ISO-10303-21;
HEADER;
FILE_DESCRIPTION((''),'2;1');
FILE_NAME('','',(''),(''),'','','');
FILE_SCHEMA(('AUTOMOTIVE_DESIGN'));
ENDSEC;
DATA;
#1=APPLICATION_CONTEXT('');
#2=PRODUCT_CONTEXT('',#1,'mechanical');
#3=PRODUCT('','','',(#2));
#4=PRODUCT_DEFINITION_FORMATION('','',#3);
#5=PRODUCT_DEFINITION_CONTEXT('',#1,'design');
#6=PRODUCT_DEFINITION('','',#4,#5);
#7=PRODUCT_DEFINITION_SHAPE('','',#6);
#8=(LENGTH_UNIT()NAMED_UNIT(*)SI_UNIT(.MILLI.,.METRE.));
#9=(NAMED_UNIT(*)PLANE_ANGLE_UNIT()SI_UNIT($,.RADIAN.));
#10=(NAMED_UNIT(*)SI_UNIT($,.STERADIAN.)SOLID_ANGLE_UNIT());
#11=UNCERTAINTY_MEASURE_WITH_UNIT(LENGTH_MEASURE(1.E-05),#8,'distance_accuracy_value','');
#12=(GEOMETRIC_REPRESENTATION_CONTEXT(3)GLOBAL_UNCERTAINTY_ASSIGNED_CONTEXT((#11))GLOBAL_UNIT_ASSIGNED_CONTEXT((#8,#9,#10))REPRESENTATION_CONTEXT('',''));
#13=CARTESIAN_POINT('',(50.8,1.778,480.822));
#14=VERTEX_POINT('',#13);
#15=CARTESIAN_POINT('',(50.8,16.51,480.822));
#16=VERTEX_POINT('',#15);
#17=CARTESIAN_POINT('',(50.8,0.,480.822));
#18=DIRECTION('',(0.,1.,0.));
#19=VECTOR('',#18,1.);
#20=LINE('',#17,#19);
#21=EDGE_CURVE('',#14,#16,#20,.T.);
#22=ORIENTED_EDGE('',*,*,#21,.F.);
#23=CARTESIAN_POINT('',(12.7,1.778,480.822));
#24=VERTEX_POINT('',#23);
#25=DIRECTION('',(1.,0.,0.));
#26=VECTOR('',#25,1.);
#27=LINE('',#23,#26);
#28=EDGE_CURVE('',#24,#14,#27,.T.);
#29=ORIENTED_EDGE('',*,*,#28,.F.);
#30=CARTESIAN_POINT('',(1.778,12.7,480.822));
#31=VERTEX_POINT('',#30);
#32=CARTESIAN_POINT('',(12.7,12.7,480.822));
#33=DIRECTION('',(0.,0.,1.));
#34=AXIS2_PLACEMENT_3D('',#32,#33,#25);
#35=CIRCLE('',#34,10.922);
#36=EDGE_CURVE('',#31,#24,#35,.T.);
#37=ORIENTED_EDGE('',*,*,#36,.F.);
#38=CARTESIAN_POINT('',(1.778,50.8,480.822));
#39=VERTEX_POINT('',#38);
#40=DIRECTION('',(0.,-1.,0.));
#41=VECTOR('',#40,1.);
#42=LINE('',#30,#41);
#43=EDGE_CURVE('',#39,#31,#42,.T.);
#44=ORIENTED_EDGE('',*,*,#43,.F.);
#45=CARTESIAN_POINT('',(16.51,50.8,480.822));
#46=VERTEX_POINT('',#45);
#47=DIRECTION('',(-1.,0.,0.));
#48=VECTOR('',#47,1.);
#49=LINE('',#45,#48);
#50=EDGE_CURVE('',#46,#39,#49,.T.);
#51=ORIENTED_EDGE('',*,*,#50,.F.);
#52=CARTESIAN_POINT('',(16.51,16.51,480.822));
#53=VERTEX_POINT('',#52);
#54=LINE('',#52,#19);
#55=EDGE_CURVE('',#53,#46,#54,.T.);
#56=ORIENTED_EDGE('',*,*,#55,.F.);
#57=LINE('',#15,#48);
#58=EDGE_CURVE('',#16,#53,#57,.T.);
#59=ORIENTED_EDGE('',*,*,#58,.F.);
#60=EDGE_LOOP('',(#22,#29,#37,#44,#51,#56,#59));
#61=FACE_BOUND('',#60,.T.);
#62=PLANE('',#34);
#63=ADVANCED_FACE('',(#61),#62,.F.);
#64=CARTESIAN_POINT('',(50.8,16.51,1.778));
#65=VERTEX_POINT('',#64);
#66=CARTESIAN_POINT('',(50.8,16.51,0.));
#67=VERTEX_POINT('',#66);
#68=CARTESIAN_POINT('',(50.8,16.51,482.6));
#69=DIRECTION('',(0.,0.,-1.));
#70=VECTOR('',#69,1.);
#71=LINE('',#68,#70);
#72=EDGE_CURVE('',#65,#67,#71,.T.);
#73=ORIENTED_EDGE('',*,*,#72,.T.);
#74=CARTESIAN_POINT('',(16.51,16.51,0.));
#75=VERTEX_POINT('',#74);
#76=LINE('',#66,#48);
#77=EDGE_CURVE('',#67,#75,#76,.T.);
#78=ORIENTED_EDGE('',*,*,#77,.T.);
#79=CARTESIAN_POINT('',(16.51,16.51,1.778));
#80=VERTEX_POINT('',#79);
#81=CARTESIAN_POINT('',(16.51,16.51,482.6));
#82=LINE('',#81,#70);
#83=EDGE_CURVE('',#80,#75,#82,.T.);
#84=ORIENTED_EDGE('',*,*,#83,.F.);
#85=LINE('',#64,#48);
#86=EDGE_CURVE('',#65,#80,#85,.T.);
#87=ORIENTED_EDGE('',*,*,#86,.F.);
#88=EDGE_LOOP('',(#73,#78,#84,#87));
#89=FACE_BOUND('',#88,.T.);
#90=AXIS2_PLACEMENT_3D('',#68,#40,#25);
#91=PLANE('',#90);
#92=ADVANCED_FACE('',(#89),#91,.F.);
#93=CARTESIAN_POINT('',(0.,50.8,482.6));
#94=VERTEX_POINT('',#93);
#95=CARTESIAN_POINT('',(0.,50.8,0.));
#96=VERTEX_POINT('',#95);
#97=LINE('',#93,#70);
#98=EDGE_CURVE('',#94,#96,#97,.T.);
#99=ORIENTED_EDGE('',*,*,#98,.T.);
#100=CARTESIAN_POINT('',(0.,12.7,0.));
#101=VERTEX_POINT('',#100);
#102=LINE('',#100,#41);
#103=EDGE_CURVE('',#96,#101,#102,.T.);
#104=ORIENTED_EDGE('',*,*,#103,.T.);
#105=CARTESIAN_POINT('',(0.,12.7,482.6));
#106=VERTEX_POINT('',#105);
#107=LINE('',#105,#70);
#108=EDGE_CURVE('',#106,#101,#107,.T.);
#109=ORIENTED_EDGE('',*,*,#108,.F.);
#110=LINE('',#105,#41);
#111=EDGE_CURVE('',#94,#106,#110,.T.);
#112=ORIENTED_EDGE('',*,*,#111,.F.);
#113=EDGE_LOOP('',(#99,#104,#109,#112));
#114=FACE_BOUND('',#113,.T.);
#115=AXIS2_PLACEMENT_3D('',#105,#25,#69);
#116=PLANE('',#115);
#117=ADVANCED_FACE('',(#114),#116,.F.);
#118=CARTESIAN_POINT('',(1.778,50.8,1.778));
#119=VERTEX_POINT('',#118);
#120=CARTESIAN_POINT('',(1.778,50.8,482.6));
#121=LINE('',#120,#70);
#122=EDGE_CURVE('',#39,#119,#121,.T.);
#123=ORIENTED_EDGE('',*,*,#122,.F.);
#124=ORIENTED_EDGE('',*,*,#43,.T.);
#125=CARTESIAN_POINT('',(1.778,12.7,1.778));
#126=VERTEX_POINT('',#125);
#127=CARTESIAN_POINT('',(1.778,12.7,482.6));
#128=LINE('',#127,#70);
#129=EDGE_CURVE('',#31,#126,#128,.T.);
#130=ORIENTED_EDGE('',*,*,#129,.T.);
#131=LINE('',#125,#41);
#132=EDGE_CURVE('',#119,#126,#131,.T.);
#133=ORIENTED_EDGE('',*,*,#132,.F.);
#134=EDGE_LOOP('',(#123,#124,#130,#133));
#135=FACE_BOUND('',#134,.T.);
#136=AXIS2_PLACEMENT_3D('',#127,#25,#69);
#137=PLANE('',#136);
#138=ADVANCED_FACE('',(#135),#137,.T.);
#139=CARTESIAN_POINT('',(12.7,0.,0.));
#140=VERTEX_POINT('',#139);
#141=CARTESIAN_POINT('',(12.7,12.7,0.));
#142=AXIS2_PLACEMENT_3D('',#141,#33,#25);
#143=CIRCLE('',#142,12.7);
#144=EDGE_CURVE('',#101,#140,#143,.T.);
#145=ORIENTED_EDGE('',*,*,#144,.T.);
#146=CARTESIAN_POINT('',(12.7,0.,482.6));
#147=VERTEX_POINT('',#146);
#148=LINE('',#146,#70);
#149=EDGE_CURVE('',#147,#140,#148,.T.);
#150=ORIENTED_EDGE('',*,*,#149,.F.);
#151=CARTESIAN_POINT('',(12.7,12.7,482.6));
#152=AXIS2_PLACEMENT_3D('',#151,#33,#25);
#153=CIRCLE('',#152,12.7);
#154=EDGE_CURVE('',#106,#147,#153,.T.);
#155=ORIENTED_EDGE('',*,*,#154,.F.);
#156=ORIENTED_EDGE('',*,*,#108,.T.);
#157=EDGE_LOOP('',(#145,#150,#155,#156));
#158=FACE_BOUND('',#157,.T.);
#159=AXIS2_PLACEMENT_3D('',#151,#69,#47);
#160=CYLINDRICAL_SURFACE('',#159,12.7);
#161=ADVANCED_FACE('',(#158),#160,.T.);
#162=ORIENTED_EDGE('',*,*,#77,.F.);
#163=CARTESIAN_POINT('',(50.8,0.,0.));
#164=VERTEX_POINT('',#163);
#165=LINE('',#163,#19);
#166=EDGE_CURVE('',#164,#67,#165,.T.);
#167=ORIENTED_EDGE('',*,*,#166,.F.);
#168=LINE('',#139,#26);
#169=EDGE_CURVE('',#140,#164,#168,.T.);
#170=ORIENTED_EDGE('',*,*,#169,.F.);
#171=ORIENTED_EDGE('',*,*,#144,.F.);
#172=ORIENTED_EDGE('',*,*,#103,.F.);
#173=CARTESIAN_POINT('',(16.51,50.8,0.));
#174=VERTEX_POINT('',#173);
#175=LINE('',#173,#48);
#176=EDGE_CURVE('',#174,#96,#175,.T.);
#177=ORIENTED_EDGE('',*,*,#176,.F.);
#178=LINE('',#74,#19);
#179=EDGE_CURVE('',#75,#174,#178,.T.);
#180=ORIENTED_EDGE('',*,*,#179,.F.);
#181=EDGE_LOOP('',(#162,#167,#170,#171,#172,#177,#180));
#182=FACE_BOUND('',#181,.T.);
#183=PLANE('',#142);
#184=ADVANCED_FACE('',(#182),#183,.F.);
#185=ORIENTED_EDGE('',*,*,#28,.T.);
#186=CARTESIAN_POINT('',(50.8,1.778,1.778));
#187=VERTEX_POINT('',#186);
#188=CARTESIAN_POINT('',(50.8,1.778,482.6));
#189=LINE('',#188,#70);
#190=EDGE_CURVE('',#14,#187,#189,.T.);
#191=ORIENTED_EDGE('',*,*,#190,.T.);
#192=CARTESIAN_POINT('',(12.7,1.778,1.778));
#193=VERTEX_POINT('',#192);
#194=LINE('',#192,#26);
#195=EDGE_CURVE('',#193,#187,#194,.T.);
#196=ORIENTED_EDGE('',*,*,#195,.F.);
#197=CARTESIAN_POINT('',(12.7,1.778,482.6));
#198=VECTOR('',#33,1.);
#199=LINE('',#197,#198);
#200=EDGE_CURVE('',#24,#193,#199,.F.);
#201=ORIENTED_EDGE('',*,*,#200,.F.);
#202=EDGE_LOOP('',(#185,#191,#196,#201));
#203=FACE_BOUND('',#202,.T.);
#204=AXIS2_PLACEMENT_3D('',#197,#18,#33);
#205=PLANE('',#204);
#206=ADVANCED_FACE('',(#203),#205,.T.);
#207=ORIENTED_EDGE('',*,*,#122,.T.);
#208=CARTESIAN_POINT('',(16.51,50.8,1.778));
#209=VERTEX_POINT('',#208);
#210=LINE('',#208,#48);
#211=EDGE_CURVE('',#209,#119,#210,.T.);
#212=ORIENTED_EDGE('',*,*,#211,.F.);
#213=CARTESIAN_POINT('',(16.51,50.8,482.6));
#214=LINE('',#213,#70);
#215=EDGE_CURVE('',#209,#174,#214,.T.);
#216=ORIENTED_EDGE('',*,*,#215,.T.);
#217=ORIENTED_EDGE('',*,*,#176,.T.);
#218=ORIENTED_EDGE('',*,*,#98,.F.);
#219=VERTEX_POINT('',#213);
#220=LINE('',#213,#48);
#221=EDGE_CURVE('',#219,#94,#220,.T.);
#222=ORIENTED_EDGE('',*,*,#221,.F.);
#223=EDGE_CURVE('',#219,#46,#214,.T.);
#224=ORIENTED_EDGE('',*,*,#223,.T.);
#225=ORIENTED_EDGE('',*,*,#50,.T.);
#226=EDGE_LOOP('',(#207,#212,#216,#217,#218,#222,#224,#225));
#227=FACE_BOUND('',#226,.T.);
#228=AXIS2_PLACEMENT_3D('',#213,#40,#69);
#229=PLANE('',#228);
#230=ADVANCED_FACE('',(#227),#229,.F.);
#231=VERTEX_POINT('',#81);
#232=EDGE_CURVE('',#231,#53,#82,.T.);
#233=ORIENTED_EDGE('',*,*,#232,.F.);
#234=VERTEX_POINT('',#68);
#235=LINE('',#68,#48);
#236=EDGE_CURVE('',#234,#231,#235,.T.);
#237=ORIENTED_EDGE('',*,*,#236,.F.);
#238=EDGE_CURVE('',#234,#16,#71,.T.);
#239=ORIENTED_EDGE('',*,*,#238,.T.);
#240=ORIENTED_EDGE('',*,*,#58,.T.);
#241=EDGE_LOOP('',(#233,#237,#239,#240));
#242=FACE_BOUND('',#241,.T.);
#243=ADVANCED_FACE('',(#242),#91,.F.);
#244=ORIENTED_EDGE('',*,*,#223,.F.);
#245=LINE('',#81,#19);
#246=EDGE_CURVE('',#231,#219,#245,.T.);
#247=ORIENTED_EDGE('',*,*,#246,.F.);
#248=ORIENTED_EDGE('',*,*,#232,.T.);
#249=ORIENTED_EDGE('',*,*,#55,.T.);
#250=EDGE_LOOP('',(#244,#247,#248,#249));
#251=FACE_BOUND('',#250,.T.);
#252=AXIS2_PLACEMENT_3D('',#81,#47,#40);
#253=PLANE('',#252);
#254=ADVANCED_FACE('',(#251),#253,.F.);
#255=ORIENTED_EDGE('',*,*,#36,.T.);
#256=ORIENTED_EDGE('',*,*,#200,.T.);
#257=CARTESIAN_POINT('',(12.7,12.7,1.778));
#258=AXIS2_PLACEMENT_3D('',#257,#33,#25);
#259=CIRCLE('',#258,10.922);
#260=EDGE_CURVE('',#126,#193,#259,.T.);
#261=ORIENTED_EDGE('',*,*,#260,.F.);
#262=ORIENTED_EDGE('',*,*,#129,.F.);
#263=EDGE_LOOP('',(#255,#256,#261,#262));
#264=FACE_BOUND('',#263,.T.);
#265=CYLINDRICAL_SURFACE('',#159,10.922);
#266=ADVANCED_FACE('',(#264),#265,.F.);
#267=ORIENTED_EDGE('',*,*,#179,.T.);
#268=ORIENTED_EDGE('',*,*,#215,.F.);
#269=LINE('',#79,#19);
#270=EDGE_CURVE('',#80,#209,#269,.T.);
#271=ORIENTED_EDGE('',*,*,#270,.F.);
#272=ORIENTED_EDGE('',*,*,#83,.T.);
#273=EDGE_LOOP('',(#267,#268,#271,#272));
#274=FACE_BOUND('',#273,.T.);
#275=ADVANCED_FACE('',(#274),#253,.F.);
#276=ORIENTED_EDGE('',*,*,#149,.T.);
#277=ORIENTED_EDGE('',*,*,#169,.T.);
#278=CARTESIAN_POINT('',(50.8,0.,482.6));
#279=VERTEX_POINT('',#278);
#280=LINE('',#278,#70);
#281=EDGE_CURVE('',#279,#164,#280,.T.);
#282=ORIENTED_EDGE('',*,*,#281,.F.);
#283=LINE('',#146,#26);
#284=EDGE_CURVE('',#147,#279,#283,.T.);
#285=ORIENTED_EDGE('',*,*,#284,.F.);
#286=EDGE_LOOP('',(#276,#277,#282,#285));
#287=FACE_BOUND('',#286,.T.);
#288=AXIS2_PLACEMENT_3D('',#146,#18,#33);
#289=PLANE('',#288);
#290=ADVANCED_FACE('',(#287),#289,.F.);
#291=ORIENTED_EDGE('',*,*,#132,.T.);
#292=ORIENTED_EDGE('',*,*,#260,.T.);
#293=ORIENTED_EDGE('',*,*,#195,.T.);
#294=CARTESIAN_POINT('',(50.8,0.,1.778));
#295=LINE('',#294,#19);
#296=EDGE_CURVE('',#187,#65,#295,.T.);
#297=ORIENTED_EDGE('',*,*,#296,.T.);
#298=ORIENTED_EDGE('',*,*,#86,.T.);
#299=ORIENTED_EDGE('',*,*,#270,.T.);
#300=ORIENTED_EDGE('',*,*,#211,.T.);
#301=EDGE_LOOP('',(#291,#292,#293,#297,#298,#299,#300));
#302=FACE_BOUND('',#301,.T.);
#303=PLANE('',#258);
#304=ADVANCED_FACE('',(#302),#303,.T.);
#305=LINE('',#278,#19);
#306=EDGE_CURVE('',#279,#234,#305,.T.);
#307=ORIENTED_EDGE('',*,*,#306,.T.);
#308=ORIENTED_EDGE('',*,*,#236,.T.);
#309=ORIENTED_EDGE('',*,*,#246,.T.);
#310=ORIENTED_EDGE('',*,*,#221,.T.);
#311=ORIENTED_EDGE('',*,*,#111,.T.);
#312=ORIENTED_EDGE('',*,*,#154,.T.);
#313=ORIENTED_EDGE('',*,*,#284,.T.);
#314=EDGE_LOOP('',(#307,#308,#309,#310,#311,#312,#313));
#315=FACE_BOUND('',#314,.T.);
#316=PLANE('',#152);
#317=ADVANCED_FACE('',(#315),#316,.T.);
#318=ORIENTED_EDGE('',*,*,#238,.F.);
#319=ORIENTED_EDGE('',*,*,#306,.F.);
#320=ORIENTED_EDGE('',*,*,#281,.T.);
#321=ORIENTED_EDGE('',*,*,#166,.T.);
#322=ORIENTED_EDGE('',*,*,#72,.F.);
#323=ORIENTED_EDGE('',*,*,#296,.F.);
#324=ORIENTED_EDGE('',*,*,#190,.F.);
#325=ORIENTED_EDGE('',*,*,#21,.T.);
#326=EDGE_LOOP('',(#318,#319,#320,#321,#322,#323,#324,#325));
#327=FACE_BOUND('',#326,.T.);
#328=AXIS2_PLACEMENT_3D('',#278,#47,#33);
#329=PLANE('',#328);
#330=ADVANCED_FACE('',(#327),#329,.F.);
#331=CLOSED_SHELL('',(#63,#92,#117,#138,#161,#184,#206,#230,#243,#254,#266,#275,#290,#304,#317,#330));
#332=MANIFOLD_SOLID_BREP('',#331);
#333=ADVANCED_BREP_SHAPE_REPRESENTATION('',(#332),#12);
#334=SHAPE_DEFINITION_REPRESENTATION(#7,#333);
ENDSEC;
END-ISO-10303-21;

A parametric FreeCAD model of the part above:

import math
import FreeCAD as App
import Part
import Sketcher
from FreeCAD import Vector
Q = App.Units.Quantity


def faces_at(feature, points):
    """Names of the faces that lie closest to the given points."""
    faces = feature.Shape.Faces
    near = lambda p: min(range(len(faces)), key=lambda i: faces[i].distToShape(Part.Vertex(*p))[0])
    return sorted({f"Face{near(p) + 1}" for p in points})

doc = App.newDocument("Part")
body = doc.addObject("PartDesign::Body", "Body")

# Sketch on XY plane
sketch1 = doc.addObject("Sketcher::SketchObject", "Sketch")
body.addObject(sketch1)
sketch1.AttachmentSupport = (doc.XY_Plane, [""])
sketch1.MapMode = "FlatFace"
sketch1.addGeometry([
    Part.LineSegment(Vector(0, 50.8, 0), Vector(0, 12.7, 0)),  # 0
    Part.ArcOfCircle(Part.Circle(Vector(12.7, 12.7, 0), Vector(0, 0, 1), 12.7), math.radians(180), math.radians(270)),  # 1
    Part.LineSegment(Vector(12.7, 0, 0), Vector(50.8, 0, 0)),  # 2
    Part.LineSegment(Vector(50.8, 0, 0), Vector(50.8, 16.51, 0)),  # 3
    Part.LineSegment(Vector(50.8, 16.51, 0), Vector(16.51, 16.51, 0)),  # 4
    Part.LineSegment(Vector(16.51, 16.51, 0), Vector(16.51, 50.8, 0)),  # 5
    Part.LineSegment(Vector(16.51, 50.8, 0), Vector(0, 50.8, 0)),  # 6
], False)
sketch1.addConstraint([
    Sketcher.Constraint("Tangent", 0, 2, 1, 1),
    Sketcher.Constraint("Tangent", 1, 2, 2, 1),
    Sketcher.Constraint("Coincident", 2, 2, 3, 1),
    Sketcher.Constraint("Coincident", 3, 2, 4, 1),
    Sketcher.Constraint("Coincident", 4, 2, 5, 1),
    Sketcher.Constraint("Coincident", 5, 2, 6, 1),
    Sketcher.Constraint("Coincident", 6, 2, 0, 1),
    Sketcher.Constraint("Vertical", 0),
    Sketcher.Constraint("Horizontal", 2),
    Sketcher.Constraint("Vertical", 3),
    Sketcher.Constraint("Horizontal", 4),
    Sketcher.Constraint("Vertical", 5),
    Sketcher.Constraint("Horizontal", 6),
    Sketcher.Constraint("PointOnObject", 0, 2, -2),
    Sketcher.Constraint("PointOnObject", 1, 2, -1),
    Sketcher.Constraint("Equal", 2, 0),
    Sketcher.Constraint("Equal", 6, 3),
    Sketcher.Constraint("Radius", 1, Q("0.5 in")),
    Sketcher.Constraint("DistanceX", 2, 1, 2, 2, Q("1.5 in")),
    Sketcher.Constraint("DistanceX", 4, 2, 4, 1, Q("1.35 in")),
])
pad1 = doc.addObject("PartDesign::Pad", "Pad")
body.addObject(pad1)
pad1.Profile = sketch1
pad1.Length = Q("19 in")
doc.recompute()

thickness = doc.addObject("PartDesign::Thickness", "Thickness")
body.addObject(thickness)
thickness.Base = (pad1, faces_at(pad1, [
    (16.51, 33.655, 241.3),
    (33.655, 16.51, 241.3),
    (50.8, 8.255, 241.3),
    (8.255, 50.8, 241.3),
]))
thickness.Value = Q("0.07 in")
thickness.Reversed = True
thickness.Join = "Intersection"

doc.recompute()
